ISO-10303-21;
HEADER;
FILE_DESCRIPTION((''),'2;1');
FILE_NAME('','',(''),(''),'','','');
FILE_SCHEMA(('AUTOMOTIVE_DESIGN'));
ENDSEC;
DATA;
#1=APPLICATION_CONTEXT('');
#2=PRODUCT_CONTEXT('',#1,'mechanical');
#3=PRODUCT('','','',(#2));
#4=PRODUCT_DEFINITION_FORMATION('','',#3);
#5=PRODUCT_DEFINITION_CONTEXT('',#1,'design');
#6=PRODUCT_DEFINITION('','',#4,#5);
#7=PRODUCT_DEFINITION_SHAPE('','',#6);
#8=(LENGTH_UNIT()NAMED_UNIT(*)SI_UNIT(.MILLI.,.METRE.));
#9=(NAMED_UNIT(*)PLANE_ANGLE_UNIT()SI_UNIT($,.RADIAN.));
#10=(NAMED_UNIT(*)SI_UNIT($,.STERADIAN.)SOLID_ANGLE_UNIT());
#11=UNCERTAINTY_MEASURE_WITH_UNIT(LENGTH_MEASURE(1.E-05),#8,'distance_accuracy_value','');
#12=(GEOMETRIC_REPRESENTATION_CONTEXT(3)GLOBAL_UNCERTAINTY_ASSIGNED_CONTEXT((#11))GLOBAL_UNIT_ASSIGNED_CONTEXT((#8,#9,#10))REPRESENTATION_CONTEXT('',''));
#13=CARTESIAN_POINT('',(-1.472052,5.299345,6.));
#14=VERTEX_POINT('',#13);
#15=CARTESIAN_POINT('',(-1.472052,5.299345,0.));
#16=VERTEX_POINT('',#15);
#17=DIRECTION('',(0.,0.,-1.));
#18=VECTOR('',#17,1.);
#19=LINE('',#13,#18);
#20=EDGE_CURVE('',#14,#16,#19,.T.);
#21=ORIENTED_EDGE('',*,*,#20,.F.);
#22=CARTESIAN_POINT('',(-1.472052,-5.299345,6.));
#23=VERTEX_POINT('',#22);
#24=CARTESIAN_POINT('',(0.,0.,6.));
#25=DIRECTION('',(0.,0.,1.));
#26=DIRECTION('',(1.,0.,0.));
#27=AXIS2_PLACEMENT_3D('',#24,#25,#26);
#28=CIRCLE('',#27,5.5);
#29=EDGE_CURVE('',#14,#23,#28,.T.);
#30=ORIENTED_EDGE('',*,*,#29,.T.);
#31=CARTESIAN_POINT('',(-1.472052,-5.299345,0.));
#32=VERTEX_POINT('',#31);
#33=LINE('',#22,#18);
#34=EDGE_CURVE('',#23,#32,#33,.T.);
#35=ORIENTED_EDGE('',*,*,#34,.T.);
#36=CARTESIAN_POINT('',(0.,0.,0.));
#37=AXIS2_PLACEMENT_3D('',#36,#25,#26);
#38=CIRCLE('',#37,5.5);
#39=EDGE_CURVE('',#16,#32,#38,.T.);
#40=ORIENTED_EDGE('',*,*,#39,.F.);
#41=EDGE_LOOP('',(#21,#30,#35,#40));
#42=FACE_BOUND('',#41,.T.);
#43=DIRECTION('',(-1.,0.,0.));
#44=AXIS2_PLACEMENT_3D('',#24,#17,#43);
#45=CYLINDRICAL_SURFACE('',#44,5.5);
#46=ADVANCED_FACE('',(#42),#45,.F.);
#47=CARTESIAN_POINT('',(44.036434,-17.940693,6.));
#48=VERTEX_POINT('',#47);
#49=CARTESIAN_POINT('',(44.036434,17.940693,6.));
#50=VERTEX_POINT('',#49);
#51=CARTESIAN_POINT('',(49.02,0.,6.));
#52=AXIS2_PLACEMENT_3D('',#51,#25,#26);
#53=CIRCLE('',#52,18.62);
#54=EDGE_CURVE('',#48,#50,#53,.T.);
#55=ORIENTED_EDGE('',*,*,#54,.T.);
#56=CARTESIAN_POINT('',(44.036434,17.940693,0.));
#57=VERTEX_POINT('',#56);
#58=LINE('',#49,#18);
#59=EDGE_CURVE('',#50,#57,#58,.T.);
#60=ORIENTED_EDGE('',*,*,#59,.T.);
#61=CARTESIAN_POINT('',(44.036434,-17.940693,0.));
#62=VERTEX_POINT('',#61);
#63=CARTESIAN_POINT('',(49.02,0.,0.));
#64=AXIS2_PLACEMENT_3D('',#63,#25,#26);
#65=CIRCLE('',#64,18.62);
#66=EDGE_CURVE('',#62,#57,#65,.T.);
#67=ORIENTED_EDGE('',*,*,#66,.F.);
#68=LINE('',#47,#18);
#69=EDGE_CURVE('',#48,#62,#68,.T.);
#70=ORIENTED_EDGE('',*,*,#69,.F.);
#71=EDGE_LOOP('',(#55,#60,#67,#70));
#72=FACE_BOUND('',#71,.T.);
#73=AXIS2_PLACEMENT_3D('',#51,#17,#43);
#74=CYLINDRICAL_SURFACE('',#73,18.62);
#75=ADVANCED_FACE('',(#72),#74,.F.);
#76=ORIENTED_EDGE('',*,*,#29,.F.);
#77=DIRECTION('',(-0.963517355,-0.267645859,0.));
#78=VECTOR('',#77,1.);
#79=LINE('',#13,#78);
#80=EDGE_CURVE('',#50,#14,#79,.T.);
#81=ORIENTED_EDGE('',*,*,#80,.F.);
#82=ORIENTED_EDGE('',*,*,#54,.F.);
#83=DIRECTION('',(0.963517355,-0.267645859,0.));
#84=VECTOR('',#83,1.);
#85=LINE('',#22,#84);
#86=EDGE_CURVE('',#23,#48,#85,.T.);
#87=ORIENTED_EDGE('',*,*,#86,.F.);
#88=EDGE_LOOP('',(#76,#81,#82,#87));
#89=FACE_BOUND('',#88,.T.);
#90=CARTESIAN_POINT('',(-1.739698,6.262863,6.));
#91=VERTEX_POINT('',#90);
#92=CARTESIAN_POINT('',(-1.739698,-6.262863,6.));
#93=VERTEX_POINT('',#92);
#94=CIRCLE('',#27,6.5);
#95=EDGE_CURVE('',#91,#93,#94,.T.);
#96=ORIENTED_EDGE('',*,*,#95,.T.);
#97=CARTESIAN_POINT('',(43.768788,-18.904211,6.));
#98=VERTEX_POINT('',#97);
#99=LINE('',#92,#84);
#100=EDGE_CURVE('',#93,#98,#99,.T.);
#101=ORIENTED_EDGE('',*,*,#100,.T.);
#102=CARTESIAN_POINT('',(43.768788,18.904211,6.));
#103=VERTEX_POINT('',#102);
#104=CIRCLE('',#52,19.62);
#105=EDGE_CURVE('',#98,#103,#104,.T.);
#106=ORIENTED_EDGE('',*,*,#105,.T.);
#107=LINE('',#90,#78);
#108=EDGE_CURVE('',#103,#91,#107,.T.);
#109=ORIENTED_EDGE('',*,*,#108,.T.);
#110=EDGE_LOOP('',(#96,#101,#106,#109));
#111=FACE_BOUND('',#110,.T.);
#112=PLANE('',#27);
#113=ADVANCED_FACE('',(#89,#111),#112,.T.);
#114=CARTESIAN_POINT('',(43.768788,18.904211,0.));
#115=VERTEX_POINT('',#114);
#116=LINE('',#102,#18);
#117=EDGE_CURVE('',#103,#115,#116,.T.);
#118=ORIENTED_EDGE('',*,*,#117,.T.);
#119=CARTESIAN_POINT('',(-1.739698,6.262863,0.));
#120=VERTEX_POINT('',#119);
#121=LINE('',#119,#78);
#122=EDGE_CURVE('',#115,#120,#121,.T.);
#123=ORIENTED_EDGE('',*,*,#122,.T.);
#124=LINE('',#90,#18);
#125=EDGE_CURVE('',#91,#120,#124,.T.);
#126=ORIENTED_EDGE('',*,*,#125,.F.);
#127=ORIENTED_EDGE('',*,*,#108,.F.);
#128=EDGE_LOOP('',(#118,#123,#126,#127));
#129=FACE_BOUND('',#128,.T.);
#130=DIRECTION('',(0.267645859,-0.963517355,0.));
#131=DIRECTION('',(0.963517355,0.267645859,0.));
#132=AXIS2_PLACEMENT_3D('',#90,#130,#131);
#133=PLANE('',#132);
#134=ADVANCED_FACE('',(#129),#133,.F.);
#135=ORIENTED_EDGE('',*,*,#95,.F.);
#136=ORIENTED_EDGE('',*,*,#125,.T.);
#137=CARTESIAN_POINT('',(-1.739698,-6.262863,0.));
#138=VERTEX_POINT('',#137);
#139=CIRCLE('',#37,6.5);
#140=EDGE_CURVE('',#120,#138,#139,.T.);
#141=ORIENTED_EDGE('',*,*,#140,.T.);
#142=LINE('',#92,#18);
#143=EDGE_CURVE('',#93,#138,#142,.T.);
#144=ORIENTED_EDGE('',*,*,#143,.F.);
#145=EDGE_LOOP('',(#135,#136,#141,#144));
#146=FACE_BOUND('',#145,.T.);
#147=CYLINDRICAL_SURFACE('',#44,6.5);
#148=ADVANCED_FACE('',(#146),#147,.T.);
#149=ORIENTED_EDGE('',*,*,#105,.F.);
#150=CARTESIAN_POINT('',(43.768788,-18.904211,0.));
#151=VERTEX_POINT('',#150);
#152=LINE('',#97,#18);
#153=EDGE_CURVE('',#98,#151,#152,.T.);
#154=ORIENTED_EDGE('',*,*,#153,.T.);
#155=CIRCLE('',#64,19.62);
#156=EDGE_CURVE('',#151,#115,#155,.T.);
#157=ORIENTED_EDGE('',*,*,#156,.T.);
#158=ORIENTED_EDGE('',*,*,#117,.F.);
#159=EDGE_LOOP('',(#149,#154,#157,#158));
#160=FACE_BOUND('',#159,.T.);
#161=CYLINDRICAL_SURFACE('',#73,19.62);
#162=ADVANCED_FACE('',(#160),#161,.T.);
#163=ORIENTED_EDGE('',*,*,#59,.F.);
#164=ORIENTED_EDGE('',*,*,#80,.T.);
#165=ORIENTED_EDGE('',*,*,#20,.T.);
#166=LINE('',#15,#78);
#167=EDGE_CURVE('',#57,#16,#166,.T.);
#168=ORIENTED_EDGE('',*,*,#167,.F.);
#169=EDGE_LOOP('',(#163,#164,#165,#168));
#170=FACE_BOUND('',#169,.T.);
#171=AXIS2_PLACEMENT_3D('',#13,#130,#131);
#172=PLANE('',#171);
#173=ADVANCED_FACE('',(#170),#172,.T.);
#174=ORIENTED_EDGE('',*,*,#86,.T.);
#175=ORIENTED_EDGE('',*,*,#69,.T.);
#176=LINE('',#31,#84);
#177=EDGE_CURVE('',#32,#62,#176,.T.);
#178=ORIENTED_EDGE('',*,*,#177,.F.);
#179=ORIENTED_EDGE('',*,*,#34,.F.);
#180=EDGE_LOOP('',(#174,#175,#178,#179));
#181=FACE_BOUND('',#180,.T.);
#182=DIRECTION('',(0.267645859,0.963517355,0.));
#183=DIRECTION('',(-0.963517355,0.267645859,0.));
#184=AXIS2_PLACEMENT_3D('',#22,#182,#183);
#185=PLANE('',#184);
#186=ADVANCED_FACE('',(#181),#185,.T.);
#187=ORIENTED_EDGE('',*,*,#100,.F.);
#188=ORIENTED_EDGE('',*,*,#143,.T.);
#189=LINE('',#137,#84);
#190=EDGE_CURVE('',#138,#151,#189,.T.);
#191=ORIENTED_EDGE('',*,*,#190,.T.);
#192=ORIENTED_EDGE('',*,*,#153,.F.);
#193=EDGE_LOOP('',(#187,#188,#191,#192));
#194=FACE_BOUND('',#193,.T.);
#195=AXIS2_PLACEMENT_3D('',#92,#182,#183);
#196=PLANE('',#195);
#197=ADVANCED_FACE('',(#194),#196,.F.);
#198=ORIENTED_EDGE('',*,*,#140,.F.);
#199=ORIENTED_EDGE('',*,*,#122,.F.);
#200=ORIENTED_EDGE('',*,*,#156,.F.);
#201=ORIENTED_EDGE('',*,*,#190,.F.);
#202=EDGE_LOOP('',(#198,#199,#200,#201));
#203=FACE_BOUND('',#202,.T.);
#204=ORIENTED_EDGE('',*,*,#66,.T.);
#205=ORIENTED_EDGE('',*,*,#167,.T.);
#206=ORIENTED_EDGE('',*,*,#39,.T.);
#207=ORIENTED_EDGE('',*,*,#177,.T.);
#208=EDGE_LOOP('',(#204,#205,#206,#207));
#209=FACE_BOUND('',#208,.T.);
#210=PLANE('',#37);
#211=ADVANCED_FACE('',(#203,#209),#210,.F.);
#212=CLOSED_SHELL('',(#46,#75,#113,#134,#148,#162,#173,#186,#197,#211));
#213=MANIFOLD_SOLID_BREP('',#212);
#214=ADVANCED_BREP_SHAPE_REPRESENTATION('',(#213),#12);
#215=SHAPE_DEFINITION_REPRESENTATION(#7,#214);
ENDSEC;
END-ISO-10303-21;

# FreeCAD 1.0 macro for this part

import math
import FreeCAD as App
import Part
import Sketcher
Q = App.Units.Quantity

doc = App.newDocument("Part")
body = doc.addObject("PartDesign::Body", "Body")

# Sketch on XY plane
sketch1 = body.newObject("Sketcher::SketchObject", "Sketch")
sketch1.AttachmentSupport = (doc.getObject("XY_Plane"), [""])
sketch1.MapMode = "FlatFace"
sketch1.addGeometry(Part.LineSegment(App.Vector(44, 19, 0), App.Vector(-2, 6, 0)), False)
sketch1.addGeometry(Part.ArcOfCircle(Part.Circle(App.Vector(0, 0, 0), App.Vector(0, 0, 1), 6), math.radians(106), math.radians(254)), False)
sketch1.addGeometry(Part.LineSegment(App.Vector(-2, -6, 0), App.Vector(44, -19, 0)), False)
sketch1.addGeometry(Part.ArcOfCircle(Part.Circle(App.Vector(49, 0, 0), App.Vector(0, 0, 1), 20), math.radians(-106), math.radians(106)), False)
sketch1.addGeometry(Part.LineSegment(App.Vector(-1, 5, 0), App.Vector(44, 18, 0)), False)
sketch1.addGeometry(Part.ArcOfCircle(Part.Circle(App.Vector(49, 0, 0), App.Vector(0, 0, 1), 19), math.radians(-106), math.radians(106)), False)
sketch1.addGeometry(Part.LineSegment(App.Vector(44, -18, 0), App.Vector(-1, -5, 0)), False)
sketch1.addGeometry(Part.ArcOfCircle(Part.Circle(App.Vector(0, 0, 0), App.Vector(0, 0, 1), 6), math.radians(106), math.radians(254)), False)
sketch1.addConstraint(Sketcher.Constraint("Tangent", 0, 2, 1, 1))
sketch1.addConstraint(Sketcher.Constraint("Tangent", 1, 2, 2, 1))
sketch1.addConstraint(Sketcher.Constraint("Tangent", 2, 2, 3, 1))
sketch1.addConstraint(Sketcher.Constraint("Tangent", 3, 2, 0, 1))
sketch1.addConstraint(Sketcher.Constraint("Tangent", 4, 2, 5, 2))
sketch1.addConstraint(Sketcher.Constraint("Tangent", 5, 1, 6, 1))
sketch1.addConstraint(Sketcher.Constraint("Tangent", 6, 2, 7, 2))
sketch1.addConstraint(Sketcher.Constraint("Tangent", 7, 1, 4, 1))
sketch1.addConstraint(Sketcher.Constraint("Coincident", 1, 3, -1, 1))
sketch1.addConstraint(Sketcher.Constraint("Coincident", 7, 3, -1, 1))
sketch1.addConstraint(Sketcher.Constraint("Coincident", 5, 3, 3, 3))
sketch1.addConstraint(Sketcher.Constraint("PointOnObject", 3, 3, -1))
sketch1.addConstraint(Sketcher.Constraint("Parallel", 0, 4))
sketch1.addConstraint(Sketcher.Constraint("Radius", 1, Q("6.5 mm")))
sketch1.addConstraint(Sketcher.Constraint("Radius", 7, Q("5.5 mm")))
sketch1.addConstraint(Sketcher.Constraint("Radius", 3, Q("19.62 mm")))
sketch1.addConstraint(Sketcher.Constraint("DistanceX", -1, 1, 3, 3, Q("49.02 mm")))
pad1 = body.newObject("PartDesign::Pad", "Pad")
pad1.Profile = sketch1
pad1.Length = 6

doc.recompute()
